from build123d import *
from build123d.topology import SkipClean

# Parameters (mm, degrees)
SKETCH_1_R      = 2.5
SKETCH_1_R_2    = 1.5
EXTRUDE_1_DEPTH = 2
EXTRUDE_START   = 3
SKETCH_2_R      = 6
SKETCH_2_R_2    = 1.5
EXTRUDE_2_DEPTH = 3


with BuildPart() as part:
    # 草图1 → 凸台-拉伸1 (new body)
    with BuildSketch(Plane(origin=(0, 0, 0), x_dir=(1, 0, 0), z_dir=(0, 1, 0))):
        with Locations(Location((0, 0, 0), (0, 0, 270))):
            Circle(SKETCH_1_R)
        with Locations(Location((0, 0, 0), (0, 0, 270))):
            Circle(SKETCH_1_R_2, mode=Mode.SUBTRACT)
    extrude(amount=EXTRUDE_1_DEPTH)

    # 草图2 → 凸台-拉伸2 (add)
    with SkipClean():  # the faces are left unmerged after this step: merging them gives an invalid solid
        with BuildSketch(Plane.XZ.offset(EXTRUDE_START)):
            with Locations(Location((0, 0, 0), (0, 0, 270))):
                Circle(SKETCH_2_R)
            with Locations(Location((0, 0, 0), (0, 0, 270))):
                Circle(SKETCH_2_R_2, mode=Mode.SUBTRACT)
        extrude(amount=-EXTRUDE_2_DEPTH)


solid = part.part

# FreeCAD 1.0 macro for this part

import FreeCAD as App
import Part
import Sketcher

V = App.Vector

doc = App.newDocument("Part")
body = doc.addObject("PartDesign::Body", "Body")

# Sketch on XZ plane
sketch1 = body.newObject("Sketcher::SketchObject", "Sketch")
sketch1.AttachmentSupport = (doc.getObject("XZ_Plane"), [""])
sketch1.MapMode = "FlatFace"
sketch1.addGeometry(Part.Circle(V(0, 0, 0), V(0, 0, 1), 2.5), False)
sketch1.addGeometry(Part.Circle(V(0, 0, 0), V(0, 0, 1), 1.5), False)
sketch1.addConstraint(Sketcher.Constraint("Coincident", 0, 3, -1, 1))
sketch1.addConstraint(Sketcher.Constraint("Coincident", 1, 3, -1, 1))
sketch1.addConstraint(Sketcher.Constraint("Diameter", 0, 5.0))
sketch1.addConstraint(Sketcher.Constraint("Diameter", 1, 3.0))
pad1 = body.newObject("PartDesign::Pad", "Pad")
pad1.Profile = sketch1
pad1.Length = 2
pad1.Reversed = True

# Sketch on XZ plane
sketch2 = body.newObject("Sketcher::SketchObject", "Sketch001")
sketch2.AttachmentSupport = (doc.getObject("XZ_Plane"), [""])
sketch2.MapMode = "FlatFace"
sketch2.AttachmentOffset = App.Placement(V(0, 0, 3), App.Rotation())
sketch2.addGeometry(Part.Circle(V(0, 0, 0), V(0, 0, 1), 6), False)
sketch2.addGeometry(Part.Circle(V(0, 0, 0), V(0, 0, 1), 1.5), False)
sketch2.addConstraint(Sketcher.Constraint("Coincident", 0, 3, -1, 1))
sketch2.addConstraint(Sketcher.Constraint("Coincident", 1, 3, -1, 1))
sketch2.addConstraint(Sketcher.Constraint("Diameter", 0, 12.0))
sketch2.addConstraint(Sketcher.Constraint("Diameter", 1, 3.0))
pad2 = body.newObject("PartDesign::Pad", "Pad001")
pad2.Profile = sketch2
pad2.Length = 3
pad2.Reversed = True

doc.recompute()
